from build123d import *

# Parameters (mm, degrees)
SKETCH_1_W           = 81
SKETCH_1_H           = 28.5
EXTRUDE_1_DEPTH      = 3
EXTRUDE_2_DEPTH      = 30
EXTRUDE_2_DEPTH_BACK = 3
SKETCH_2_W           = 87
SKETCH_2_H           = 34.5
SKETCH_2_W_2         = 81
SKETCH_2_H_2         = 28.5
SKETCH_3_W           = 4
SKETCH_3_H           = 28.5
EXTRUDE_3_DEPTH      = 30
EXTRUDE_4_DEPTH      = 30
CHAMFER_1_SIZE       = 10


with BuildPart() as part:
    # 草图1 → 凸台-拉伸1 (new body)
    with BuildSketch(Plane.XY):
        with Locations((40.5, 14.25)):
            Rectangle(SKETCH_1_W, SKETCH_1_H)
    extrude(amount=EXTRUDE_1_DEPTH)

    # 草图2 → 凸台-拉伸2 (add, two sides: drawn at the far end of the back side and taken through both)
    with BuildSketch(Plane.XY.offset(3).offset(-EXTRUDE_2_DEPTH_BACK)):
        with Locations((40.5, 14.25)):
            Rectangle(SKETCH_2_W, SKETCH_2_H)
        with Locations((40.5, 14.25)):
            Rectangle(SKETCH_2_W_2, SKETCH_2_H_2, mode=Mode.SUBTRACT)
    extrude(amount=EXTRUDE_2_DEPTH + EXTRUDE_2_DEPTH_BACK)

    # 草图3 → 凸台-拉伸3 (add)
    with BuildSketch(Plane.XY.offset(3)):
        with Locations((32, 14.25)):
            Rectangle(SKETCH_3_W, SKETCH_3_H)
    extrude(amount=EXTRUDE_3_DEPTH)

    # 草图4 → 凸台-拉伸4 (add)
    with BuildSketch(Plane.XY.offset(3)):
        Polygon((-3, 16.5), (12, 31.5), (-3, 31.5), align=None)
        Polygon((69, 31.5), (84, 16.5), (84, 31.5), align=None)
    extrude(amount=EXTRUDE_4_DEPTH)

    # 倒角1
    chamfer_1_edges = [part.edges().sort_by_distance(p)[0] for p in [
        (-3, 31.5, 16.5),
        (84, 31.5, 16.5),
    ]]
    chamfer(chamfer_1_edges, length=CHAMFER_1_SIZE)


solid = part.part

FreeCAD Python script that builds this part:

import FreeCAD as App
import Part
import Sketcher


def edges_at(feature, points):
    """Names of the edges that pass closest to the given points."""
    edges = feature.Shape.Edges
    near = lambda p: min(range(len(edges)), key=lambda i: edges[i].distToShape(Part.Vertex(*p))[0])
    return sorted({f"Edge{near(p) + 1}" for p in points})

doc = App.newDocument("Part")
body = doc.addObject("PartDesign::Body", "Body")

# Sketch on XY plane
sketch1 = body.newObject("Sketcher::SketchObject", "Sketch")
sketch1.AttachmentSupport = (doc.getObject("XY_Plane"), [""])
sketch1.MapMode = "FlatFace"
sketch1.addGeometry(Part.LineSegment(App.Vector(0, 28.5, 0), App.Vector(0, 0, 0)), False)
sketch1.addGeometry(Part.LineSegment(App.Vector(0, 0, 0), App.Vector(81, 0, 0)), False)
sketch1.addGeometry(Part.LineSegment(App.Vector(81, 0, 0), App.Vector(81, 28.5, 0)), False)
sketch1.addGeometry(Part.LineSegment(App.Vector(81, 28.5, 0), App.Vector(0, 28.5, 0)), False)
sketch1.addConstraint(Sketcher.Constraint("Coincident", 0, 2, 1, 1))
sketch1.addConstraint(Sketcher.Constraint("Coincident", 1, 2, 2, 1))
sketch1.addConstraint(Sketcher.Constraint("Coincident", 2, 2, 3, 1))
sketch1.addConstraint(Sketcher.Constraint("Coincident", 3, 2, 0, 1))
sketch1.addConstraint(Sketcher.Constraint("Vertical", 0))
sketch1.addConstraint(Sketcher.Constraint("Horizontal", 1))
sketch1.addConstraint(Sketcher.Constraint("Vertical", 2))
sketch1.addConstraint(Sketcher.Constraint("Horizontal", 3))
sketch1.addConstraint(Sketcher.Constraint("Coincident", 0, 2, -1, 1))
sketch1.addConstraint(Sketcher.Constraint("DistanceX", 1, 1, 1, 2, 81.0))
sketch1.addConstraint(Sketcher.Constraint("DistanceY", 0, 2, 0, 1, 28.5))
pad1 = body.newObject("PartDesign::Pad", "Pad")
pad1.Profile = sketch1
pad1.Length = 3

# Sketch on XY plane
sketch2 = body.newObject("Sketcher::SketchObject", "Sketch001")
sketch2.AttachmentSupport = (doc.getObject("XY_Plane"), [""])
sketch2.MapMode = "FlatFace"
sketch2.AttachmentOffset = App.Placement(App.Vector(0, 0, 3), App.Rotation())
sketch2.addGeometry(Part.LineSegment(App.Vector(-3, 31.5, 0), App.Vector(-3, -3, 0)), False)
sketch2.addGeometry(Part.LineSegment(App.Vector(-3, -3, 0), App.Vector(84, -3, 0)), False)
sketch2.addGeometry(Part.LineSegment(App.Vector(84, -3, 0), App.Vector(84, 31.5, 0)), False)
sketch2.addGeometry(Part.LineSegment(App.Vector(84, 31.5, 0), App.Vector(-3, 31.5, 0)), False)
sketch2.addGeometry(Part.LineSegment(App.Vector(81, 0, 0), App.Vector(0, 0, 0)), False)
sketch2.addGeometry(Part.LineSegment(App.Vector(0, 0, 0), App.Vector(0, 28.5, 0)), False)
sketch2.addGeometry(Part.LineSegment(App.Vector(0, 28.5, 0), App.Vector(81, 28.5, 0)), False)
sketch2.addGeometry(Part.LineSegment(App.Vector(81, 28.5, 0), App.Vector(81, 0, 0)), False)
sketch2.addConstraint(Sketcher.Constraint("Coincident", 0, 2, 1, 1))
sketch2.addConstraint(Sketcher.Constraint("Coincident", 1, 2, 2, 1))
sketch2.addConstraint(Sketcher.Constraint("Coincident", 2, 2, 3, 1))
sketch2.addConstraint(Sketcher.Constraint("Coincident", 3, 2, 0, 1))
sketch2.addConstraint(Sketcher.Constraint("Coincident", 4, 2, 5, 1))
sketch2.addConstraint(Sketcher.Constraint("Coincident", 5, 2, 6, 1))
sketch2.addConstraint(Sketcher.Constraint("Coincident", 6, 2, 7, 1))
sketch2.addConstraint(Sketcher.Constraint("Coincident", 7, 2, 4, 1))
sketch2.addConstraint(Sketcher.Constraint("Vertical", 0))
sketch2.addConstraint(Sketcher.Constraint("Horizontal", 1))
sketch2.addConstraint(Sketcher.Constraint("Vertical", 2))
sketch2.addConstraint(Sketcher.Constraint("Horizontal", 3))
sketch2.addConstraint(Sketcher.Constraint("Horizontal", 4))
sketch2.addConstraint(Sketcher.Constraint("Vertical", 5))
sketch2.addConstraint(Sketcher.Constraint("Horizontal", 6))
sketch2.addConstraint(Sketcher.Constraint("Vertical", 7))
sketch2.addConstraint(Sketcher.Constraint("Coincident", 4, 2, -1, 1))
sketch2.addConstraint(Sketcher.Constraint("DistanceX", 1, 1, 1, 2, 87.0))
sketch2.addConstraint(Sketcher.Constraint("DistanceX", 4, 2, 4, 1, 81.0))
sketch2.addConstraint(Sketcher.Constraint("DistanceY", 0, 2, 0, 1, 34.5))
sketch2.addConstraint(Sketcher.Constraint("DistanceY", 5, 1, 5, 2, 28.5))
sketch2.addConstraint(Sketcher.Constraint("DistanceX", 0, 2, -1, 1, 3.0))
sketch2.addConstraint(Sketcher.Constraint("DistanceY", 0, 2, -1, 1, 3.0))
pad2 = body.newObject("PartDesign::Pad", "Pad001")
pad2.Profile = sketch2
pad2.Type = "TwoLengths"
pad2.Length = 30
pad2.Length2 = 3

# Sketch on XY plane
sketch3 = body.newObject("Sketcher::SketchObject", "Sketch002")
sketch3.AttachmentSupport = (doc.getObject("XY_Plane"), [""])
sketch3.MapMode = "FlatFace"
sketch3.AttachmentOffset = App.Placement(App.Vector(0, 0, 3), App.Rotation())
sketch3.addGeometry(Part.LineSegment(App.Vector(30, 28.5, 0), App.Vector(30, 0, 0)), False)
sketch3.addGeometry(Part.LineSegment(App.Vector(30, 0, 0), App.Vector(34, 0, 0)), False)
sketch3.addGeometry(Part.LineSegment(App.Vector(34, 0, 0), App.Vector(34, 28.5, 0)), False)
sketch3.addGeometry(Part.LineSegment(App.Vector(34, 28.5, 0), App.Vector(30, 28.5, 0)), False)
sketch3.addConstraint(Sketcher.Constraint("Coincident", 0, 2, 1, 1))
sketch3.addConstraint(Sketcher.Constraint("Coincident", 1, 2, 2, 1))
sketch3.addConstraint(Sketcher.Constraint("Coincident", 2, 2, 3, 1))
sketch3.addConstraint(Sketcher.Constraint("Coincident", 3, 2, 0, 1))
sketch3.addConstraint(Sketcher.Constraint("Vertical", 0))
sketch3.addConstraint(Sketcher.Constraint("Horizontal", 1))
sketch3.addConstraint(Sketcher.Constraint("Vertical", 2))
sketch3.addConstraint(Sketcher.Constraint("Horizontal", 3))
sketch3.addConstraint(Sketcher.Constraint("PointOnObject", 0, 2, -1))
sketch3.addConstraint(Sketcher.Constraint("DistanceX", 1, 1, 1, 2, 4.0))
sketch3.addConstraint(Sketcher.Constraint("DistanceY", 0, 2, 0, 1, 28.5))
sketch3.addConstraint(Sketcher.Constraint("DistanceX", -1, 1, 0, 2, 30.0))
pad3 = body.newObject("PartDesign::Pad", "Pad002")
pad3.Profile = sketch3
pad3.Length = 30

# Sketch on XY plane
sketch4 = body.newObject("Sketcher::SketchObject", "Sketch003")
sketch4.AttachmentSupport = (doc.getObject("XY_Plane"), [""])
sketch4.MapMode = "FlatFace"
sketch4.AttachmentOffset = App.Placement(App.Vector(0, 0, 3), App.Rotation())
sketch4.addGeometry(Part.LineSegment(App.Vector(-3, 16.5, 0), App.Vector(12, 31.5, 0)), False)
sketch4.addGeometry(Part.LineSegment(App.Vector(12, 31.5, 0), App.Vector(-3, 31.5, 0)), False)
sketch4.addGeometry(Part.LineSegment(App.Vector(-3, 31.5, 0), App.Vector(-3, 16.5, 0)), False)
sketch4.addGeometry(Part.LineSegment(App.Vector(69, 31.5, 0), App.Vector(84, 16.5, 0)), False)
sketch4.addGeometry(Part.LineSegment(App.Vector(84, 16.5, 0), App.Vector(84, 31.5, 0)), False)
sketch4.addGeometry(Part.LineSegment(App.Vector(84, 31.5, 0), App.Vector(69, 31.5, 0)), False)
sketch4.addConstraint(Sketcher.Constraint("Coincident", 0, 2, 1, 1))
sketch4.addConstraint(Sketcher.Constraint("Coincident", 1, 2, 2, 1))
sketch4.addConstraint(Sketcher.Constraint("Coincident", 2, 2, 0, 1))
sketch4.addConstraint(Sketcher.Constraint("Coincident", 3, 2, 4, 1))
sketch4.addConstraint(Sketcher.Constraint("Coincident", 4, 2, 5, 1))
sketch4.addConstraint(Sketcher.Constraint("Coincident", 5, 2, 3, 1))
sketch4.addConstraint(Sketcher.Constraint("Horizontal", 1))
sketch4.addConstraint(Sketcher.Constraint("Vertical", 2))
sketch4.addConstraint(Sketcher.Constraint("Vertical", 4))
sketch4.addConstraint(Sketcher.Constraint("Horizontal", 5))
sketch4.addConstraint(Sketcher.Constraint("Perpendicular", 0, 3))
sketch4.addConstraint(Sketcher.Constraint("Horizontal", 2, 2, 3, 2))
sketch4.addConstraint(Sketcher.Constraint("Horizontal", 1, 2, 4, 2))
sketch4.addConstraint(Sketcher.Constraint("Equal", 1, 5))
sketch4.addConstraint(Sketcher.Constraint("DistanceX", 1, 2, 1, 1, 15.0))
sketch4.addConstraint(Sketcher.Constraint("DistanceX", -1, 1, 0, 2, 12.0))
sketch4.addConstraint(Sketcher.Constraint("DistanceX", -1, 1, 3, 2, 84.0))
sketch4.addConstraint(Sketcher.Constraint("DistanceY", -1, 1, 0, 2, 31.5))
pad4 = body.newObject("PartDesign::Pad", "Pad003")
pad4.Profile = sketch4
pad4.Length = 30
doc.recompute()

chamfer = body.newObject("PartDesign::Chamfer", "Chamfer")
chamfer.Base = (pad4, edges_at(pad4, [(-3, 31.5, 16.5), (84, 31.5, 16.5)]))
chamfer.Size = 10

doc.recompute()
